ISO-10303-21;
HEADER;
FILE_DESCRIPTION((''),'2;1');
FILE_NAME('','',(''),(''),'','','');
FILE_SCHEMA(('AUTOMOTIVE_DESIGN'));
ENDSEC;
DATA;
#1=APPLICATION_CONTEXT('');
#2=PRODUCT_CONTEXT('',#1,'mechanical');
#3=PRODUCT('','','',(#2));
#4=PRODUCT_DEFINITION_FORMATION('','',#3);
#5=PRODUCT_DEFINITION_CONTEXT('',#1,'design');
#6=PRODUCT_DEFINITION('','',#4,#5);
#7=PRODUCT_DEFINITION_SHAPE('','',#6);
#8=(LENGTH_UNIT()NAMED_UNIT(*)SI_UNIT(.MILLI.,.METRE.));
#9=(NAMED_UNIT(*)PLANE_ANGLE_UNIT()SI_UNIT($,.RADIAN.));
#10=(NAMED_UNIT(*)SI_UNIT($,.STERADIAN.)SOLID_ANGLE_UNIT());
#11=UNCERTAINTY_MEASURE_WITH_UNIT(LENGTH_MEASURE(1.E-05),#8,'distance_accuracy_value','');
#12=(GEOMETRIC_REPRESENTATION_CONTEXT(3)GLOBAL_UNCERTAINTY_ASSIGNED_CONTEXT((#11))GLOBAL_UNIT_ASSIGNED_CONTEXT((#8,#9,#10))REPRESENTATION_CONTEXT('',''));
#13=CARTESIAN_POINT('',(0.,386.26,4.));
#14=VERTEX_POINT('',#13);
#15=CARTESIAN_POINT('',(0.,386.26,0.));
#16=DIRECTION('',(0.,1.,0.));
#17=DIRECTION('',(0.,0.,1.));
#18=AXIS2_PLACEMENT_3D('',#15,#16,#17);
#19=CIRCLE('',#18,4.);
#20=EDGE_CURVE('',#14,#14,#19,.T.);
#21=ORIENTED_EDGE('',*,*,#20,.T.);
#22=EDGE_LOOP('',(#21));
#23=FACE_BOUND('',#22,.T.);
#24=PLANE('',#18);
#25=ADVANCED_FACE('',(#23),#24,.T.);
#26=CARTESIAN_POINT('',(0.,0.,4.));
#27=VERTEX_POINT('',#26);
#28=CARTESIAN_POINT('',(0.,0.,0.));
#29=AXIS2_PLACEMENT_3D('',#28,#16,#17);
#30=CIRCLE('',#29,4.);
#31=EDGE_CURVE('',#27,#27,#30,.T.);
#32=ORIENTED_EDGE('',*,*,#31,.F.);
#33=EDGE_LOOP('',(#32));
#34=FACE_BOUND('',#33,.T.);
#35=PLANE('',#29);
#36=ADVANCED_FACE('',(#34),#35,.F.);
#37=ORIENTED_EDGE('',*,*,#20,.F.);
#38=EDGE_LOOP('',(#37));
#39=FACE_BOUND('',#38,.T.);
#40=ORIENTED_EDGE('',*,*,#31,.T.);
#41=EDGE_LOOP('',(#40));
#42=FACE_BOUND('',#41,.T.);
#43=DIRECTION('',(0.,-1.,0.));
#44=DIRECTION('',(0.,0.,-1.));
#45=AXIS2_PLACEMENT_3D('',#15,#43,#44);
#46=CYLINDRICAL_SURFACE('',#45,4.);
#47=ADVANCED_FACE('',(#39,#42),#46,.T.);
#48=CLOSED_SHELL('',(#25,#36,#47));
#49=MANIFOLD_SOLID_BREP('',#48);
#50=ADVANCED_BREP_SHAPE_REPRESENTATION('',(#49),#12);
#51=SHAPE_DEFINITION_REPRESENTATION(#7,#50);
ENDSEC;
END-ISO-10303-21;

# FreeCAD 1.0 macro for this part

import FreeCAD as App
import Part
import Sketcher
from FreeCAD import Vector

doc = App.newDocument("Part")
params = doc.addObject("Spreadsheet::Sheet", "Params")
for row, (alias, value) in enumerate([
    ("sketch1_diameter", "8 mm"),
    ("pad1_length", "386.26 mm"),
], start=1):
    params.set(f"A{row}", alias)
    params.set(f"B{row}", "=" + value)
    params.setAlias(f"B{row}", alias)

body = doc.addObject("PartDesign::Body", "Body")

# Sketch on XZ plane
sketch1 = doc.addObject("Sketcher::SketchObject", "Sketch")
body.addObject(sketch1)
sketch1.AttachmentSupport = (doc.XZ_Plane, [""])
sketch1.MapMode = "FlatFace"
sketch1.addGeometry(Part.Circle(Vector(0, 0, 0), Vector(0, 0, 1), 4), False)
sketch1.addConstraint([
    Sketcher.Constraint("Coincident", 0, 3, -1, 1),
    Sketcher.Constraint("Diameter", 0, 8.0),
])
sketch1.setExpression("Constraints[1]", "Params.sketch1_diameter")
pad1 = doc.addObject("PartDesign::Pad", "Pad")
body.addObject(pad1)
pad1.Profile = sketch1
pad1.setExpression("Length", "Params.pad1_length")
pad1.Reversed = True

doc.recompute()
